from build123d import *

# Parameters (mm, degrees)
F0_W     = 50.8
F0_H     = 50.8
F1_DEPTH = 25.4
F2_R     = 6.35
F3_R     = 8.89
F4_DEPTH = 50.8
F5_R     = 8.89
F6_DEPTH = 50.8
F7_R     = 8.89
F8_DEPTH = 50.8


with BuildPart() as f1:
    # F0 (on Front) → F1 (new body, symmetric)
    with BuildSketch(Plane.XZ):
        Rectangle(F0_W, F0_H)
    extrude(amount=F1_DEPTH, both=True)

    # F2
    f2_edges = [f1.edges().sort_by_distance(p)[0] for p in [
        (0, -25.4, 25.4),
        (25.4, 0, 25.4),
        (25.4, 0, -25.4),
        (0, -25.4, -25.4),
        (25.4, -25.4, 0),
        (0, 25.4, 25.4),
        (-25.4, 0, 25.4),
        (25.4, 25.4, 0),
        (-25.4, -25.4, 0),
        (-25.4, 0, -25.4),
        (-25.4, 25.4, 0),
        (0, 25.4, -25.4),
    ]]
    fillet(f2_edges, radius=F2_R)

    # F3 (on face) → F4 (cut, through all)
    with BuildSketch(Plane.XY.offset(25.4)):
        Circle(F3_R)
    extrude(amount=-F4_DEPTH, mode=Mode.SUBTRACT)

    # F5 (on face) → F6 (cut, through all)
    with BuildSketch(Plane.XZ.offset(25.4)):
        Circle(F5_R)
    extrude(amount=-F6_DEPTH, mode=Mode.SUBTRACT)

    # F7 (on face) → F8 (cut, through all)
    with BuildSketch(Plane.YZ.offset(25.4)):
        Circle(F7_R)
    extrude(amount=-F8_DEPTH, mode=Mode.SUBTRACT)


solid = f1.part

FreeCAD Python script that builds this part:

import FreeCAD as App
import Part
import Sketcher
from FreeCAD import Vector
Q = App.Units.Quantity

doc = App.newDocument("Part")
body = doc.addObject("PartDesign::Body", "Body")

sketch1 = doc.addObject("Sketcher::SketchObject", "Sketch")
body.addObject(sketch1)
sketch1.AttachmentSupport = (doc.XZ_Plane, [""])
sketch1.MapMode = "FlatFace"
sketch1.addGeometry(Part.LineSegment(Vector(-25, 25, 0), Vector(-25, -25, 0)), False)
sketch1.addGeometry(Part.LineSegment(Vector(-25, -25, 0), Vector(25, -25, 0)), False)
sketch1.addGeometry(Part.LineSegment(Vector(25, -25, 0), Vector(25, 25, 0)), False)
sketch1.addGeometry(Part.LineSegment(Vector(25, 25, 0), Vector(-25, 25, 0)), False)
sketch1.addConstraint(Sketcher.Constraint("Coincident", 0, 2, 1, 1))
sketch1.addConstraint(Sketcher.Constraint("Coincident", 1, 2, 2, 1))
sketch1.addConstraint(Sketcher.Constraint("Coincident", 2, 2, 3, 1))
sketch1.addConstraint(Sketcher.Constraint("Coincident", 3, 2, 0, 1))
sketch1.addConstraint(Sketcher.Constraint("Vertical", 0))
sketch1.addConstraint(Sketcher.Constraint("Horizontal", 1))
sketch1.addConstraint(Sketcher.Constraint("Vertical", 2))
sketch1.addConstraint(Sketcher.Constraint("Horizontal", 3))
sketch1.addConstraint(Sketcher.Constraint("Symmetric", 0, 2, 2, 2, -1, 1))
sketch1.addConstraint(Sketcher.Constraint("Equal", 3, 0))
sketch1.addConstraint(Sketcher.Constraint("DistanceX", 1, 1, 1, 2, Q("2 in")))
pad1 = doc.addObject("PartDesign::Pad", "Pad")
body.addObject(pad1)
pad1.Profile = sketch1
pad1.Length = Q("2 in")
pad1.Midplane = True
doc.recompute()

fillet = doc.addObject("PartDesign::Fillet", "Fillet")
body.addObject(fillet)
fillet.Base = (pad1, ["Edge1"])
fillet.UseAllEdges = True
fillet.Radius = Q("0.25 in")

sketch2 = doc.addObject("Sketcher::SketchObject", "Sketch001")
body.addObject(sketch2)
sketch2.AttachmentSupport = (doc.XY_Plane, [""])
sketch2.MapMode = "FlatFace"
sketch2.AttachmentOffset = App.Placement(Vector(0, 0, 1 * 25.4), App.Rotation())
sketch2.addGeometry(Part.Circle(Vector(0, 0, 0), Vector(0, 0, 1), 9), False)
sketch2.addConstraint(Sketcher.Constraint("Coincident", 0, 3, -1, 1))
sketch2.addConstraint(Sketcher.Constraint("Diameter", 0, Q("0.7 in")))
pocket1 = doc.addObject("PartDesign::Pocket", "Pocket")
body.addObject(pocket1)
pocket1.Profile = sketch2
pocket1.Type = "ThroughAll"

sketch3 = doc.addObject("Sketcher::SketchObject", "Sketch002")
body.addObject(sketch3)
sketch3.AttachmentSupport = (doc.XZ_Plane, [""])
sketch3.MapMode = "FlatFace"
sketch3.AttachmentOffset = App.Placement(Vector(0, 0, 1 * 25.4), App.Rotation())
sketch3.addGeometry(Part.Circle(Vector(0, 0, 0), Vector(0, 0, 1), 9), False)
sketch3.addConstraint(Sketcher.Constraint("Coincident", 0, 3, -1, 1))
sketch3.addConstraint(Sketcher.Constraint("Diameter", 0, Q("0.7 in")))
pocket2 = doc.addObject("PartDesign::Pocket", "Pocket001")
body.addObject(pocket2)
pocket2.Profile = sketch3
pocket2.Type = "ThroughAll"

sketch4 = doc.addObject("Sketcher::SketchObject", "Sketch003")
body.addObject(sketch4)
sketch4.AttachmentSupport = (doc.YZ_Plane, [""])
sketch4.MapMode = "FlatFace"
sketch4.AttachmentOffset = App.Placement(Vector(0, 0, 1 * 25.4), App.Rotation())
sketch4.addGeometry(Part.Circle(Vector(0, 0, 0), Vector(0, 0, 1), 9), False)
sketch4.addConstraint(Sketcher.Constraint("Coincident", 0, 3, -1, 1))
sketch4.addConstraint(Sketcher.Constraint("Diameter", 0, Q("0.7 in")))
pocket3 = doc.addObject("PartDesign::Pocket", "Pocket002")
body.addObject(pocket3)
pocket3.Profile = sketch4
pocket3.Type = "ThroughAll"

doc.recompute()
